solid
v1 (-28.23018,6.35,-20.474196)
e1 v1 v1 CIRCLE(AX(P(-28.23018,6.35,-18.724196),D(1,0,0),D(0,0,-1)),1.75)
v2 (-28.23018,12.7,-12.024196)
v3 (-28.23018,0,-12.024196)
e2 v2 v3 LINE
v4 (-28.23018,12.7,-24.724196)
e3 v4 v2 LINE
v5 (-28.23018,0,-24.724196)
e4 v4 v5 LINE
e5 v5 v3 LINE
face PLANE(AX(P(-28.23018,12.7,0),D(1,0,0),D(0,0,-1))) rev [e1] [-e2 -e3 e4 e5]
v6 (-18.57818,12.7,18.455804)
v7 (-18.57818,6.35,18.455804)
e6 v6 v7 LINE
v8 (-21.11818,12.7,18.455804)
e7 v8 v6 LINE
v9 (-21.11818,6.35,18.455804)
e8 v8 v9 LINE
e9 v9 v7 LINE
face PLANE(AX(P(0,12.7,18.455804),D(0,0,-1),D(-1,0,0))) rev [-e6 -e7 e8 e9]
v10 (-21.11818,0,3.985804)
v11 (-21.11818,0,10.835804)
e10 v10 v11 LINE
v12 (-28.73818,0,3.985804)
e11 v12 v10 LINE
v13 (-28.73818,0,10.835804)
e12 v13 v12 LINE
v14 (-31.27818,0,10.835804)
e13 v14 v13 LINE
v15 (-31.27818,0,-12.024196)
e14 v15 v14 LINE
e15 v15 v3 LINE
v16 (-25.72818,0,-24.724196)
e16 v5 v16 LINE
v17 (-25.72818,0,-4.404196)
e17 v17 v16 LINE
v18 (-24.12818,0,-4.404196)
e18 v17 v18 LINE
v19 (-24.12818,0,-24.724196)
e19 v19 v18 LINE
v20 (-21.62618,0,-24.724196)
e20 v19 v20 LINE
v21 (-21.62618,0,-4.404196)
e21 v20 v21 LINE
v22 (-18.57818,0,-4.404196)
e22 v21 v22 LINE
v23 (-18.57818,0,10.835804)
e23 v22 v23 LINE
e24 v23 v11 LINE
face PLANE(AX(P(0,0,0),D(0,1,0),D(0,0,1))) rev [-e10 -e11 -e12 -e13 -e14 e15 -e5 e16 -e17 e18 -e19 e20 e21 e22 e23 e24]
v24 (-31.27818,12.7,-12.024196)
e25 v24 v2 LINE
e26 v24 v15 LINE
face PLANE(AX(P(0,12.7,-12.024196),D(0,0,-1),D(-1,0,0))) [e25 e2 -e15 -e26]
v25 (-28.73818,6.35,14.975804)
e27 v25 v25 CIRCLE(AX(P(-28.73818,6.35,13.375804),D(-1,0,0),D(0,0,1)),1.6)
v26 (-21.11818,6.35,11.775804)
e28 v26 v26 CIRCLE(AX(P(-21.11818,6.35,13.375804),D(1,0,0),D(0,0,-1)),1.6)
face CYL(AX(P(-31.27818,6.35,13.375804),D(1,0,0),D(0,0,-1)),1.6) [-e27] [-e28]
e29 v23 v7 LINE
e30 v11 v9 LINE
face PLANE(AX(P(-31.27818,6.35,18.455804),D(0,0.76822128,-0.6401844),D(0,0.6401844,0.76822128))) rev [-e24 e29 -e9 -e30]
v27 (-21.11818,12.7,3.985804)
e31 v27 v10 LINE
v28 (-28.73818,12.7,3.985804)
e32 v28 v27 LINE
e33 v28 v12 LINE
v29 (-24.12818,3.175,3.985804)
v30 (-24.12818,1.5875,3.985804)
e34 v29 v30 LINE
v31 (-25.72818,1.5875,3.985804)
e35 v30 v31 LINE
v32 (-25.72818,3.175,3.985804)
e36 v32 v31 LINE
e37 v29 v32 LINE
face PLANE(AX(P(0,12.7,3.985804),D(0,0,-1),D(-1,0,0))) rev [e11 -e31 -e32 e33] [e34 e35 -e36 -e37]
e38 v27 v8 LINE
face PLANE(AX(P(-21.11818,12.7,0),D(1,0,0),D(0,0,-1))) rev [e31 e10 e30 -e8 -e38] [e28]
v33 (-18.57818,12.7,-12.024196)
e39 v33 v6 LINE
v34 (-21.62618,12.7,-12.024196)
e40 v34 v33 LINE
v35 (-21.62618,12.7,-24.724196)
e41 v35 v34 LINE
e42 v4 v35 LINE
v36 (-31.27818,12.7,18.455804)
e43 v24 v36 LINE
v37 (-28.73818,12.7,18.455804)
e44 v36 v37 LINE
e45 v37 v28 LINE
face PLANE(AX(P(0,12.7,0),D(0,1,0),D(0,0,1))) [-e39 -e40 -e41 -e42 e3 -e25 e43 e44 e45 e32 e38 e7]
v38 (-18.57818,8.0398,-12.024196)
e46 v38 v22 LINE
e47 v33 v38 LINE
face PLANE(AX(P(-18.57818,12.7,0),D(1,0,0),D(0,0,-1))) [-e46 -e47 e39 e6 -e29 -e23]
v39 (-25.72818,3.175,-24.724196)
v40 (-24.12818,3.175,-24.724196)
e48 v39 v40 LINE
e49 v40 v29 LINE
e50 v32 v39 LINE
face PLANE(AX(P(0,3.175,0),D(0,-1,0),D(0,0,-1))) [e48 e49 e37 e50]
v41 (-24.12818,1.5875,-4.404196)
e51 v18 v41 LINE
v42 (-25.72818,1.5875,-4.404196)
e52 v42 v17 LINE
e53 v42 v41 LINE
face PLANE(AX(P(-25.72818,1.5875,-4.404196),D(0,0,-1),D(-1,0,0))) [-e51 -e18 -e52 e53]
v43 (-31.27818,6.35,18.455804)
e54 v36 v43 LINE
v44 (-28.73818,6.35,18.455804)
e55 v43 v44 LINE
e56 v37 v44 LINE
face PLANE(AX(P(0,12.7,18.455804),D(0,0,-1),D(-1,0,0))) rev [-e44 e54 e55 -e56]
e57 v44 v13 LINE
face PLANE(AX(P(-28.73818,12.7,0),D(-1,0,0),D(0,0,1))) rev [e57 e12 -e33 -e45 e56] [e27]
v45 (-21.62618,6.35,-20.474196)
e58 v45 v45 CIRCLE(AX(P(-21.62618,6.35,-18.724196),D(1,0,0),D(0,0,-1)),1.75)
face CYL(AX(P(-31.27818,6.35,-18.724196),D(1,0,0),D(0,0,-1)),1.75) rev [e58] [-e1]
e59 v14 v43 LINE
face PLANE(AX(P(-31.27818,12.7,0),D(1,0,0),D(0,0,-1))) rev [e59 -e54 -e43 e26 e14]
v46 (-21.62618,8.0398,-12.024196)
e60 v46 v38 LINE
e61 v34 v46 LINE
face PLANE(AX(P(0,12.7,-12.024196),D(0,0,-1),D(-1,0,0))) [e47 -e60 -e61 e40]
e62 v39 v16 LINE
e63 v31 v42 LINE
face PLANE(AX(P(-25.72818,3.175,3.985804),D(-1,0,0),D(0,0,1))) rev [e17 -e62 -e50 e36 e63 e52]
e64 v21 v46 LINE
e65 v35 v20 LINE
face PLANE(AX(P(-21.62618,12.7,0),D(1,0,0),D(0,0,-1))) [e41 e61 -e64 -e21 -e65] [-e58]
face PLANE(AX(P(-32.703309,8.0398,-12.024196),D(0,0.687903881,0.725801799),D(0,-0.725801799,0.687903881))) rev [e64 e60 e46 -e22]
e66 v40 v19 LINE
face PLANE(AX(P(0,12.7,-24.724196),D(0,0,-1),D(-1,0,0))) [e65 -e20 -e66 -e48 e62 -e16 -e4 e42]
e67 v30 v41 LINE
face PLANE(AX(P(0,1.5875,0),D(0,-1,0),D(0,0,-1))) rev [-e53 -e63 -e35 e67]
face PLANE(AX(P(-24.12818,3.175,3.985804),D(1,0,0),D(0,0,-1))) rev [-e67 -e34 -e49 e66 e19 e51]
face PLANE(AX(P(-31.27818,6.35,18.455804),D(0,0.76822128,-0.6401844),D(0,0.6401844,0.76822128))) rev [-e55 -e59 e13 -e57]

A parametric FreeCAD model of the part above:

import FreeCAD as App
import Part
import Sketcher
Q = App.Units.Quantity

doc = App.newDocument("Part")
body = doc.addObject("PartDesign::Body", "Body")

sketch1 = body.newObject("Sketcher::SketchObject", "Sketch")
sketch1.AttachmentSupport = (doc.getObject("XZ_Plane"), [""])
sketch1.MapMode = "FlatFace"
sketch1.addGeometry(Part.LineSegment(App.Vector(-31.3, -12, 0), App.Vector(-31.3, 18.5, 0)), False)
sketch1.addGeometry(Part.LineSegment(App.Vector(-31.3, 18.5, 0), App.Vector(-28.7, 18.5, 0)), False)
sketch1.addGeometry(Part.LineSegment(App.Vector(-28.7, 18.5, 0), App.Vector(-28.7, 4, 0)), False)
sketch1.addGeometry(Part.LineSegment(App.Vector(-28.7, 4, 0), App.Vector(-21.1, 4, 0)), False)
sketch1.addGeometry(Part.LineSegment(App.Vector(-21.1, 4, 0), App.Vector(-21.1, 18.5, 0)), False)
sketch1.addGeometry(Part.LineSegment(App.Vector(-21.1, 18.5, 0), App.Vector(-18.6, 18.5, 0)), False)
sketch1.addGeometry(Part.LineSegment(App.Vector(-18.6, 18.5, 0), App.Vector(-18.6, -12, 0)), False)
sketch1.addGeometry(Part.LineSegment(App.Vector(-18.6, -12, 0), App.Vector(-21.6, -12, 0)), False)
sketch1.addGeometry(Part.LineSegment(App.Vector(-21.6, -12, 0), App.Vector(-21.6, -24.7, 0)), False)
sketch1.addGeometry(Part.LineSegment(App.Vector(-21.6, -24.7, 0), App.Vector(-28.2, -24.7, 0)), False)
sketch1.addGeometry(Part.LineSegment(App.Vector(-28.2, -24.7, 0), App.Vector(-28.2, -12, 0)), False)
sketch1.addGeometry(Part.LineSegment(App.Vector(-28.2, -12, 0), App.Vector(-31.3, -12, 0)), False)
sketch1.addConstraint(Sketcher.Constraint("Coincident", 0, 2, 1, 1))
sketch1.addConstraint(Sketcher.Constraint("Coincident", 1, 2, 2, 1))
sketch1.addConstraint(Sketcher.Constraint("Coincident", 2, 2, 3, 1))
sketch1.addConstraint(Sketcher.Constraint("Coincident", 3, 2, 4, 1))
sketch1.addConstraint(Sketcher.Constraint("Coincident", 4, 2, 5, 1))
sketch1.addConstraint(Sketcher.Constraint("Coincident", 5, 2, 6, 1))
sketch1.addConstraint(Sketcher.Constraint("Coincident", 6, 2, 7, 1))
sketch1.addConstraint(Sketcher.Constraint("Coincident", 7, 2, 8, 1))
sketch1.addConstraint(Sketcher.Constraint("Coincident", 8, 2, 9, 1))
sketch1.addConstraint(Sketcher.Constraint("Coincident", 9, 2, 10, 1))
sketch1.addConstraint(Sketcher.Constraint("Coincident", 10, 2, 11, 1))
sketch1.addConstraint(Sketcher.Constraint("Coincident", 11, 2, 0, 1))
sketch1.addConstraint(Sketcher.Constraint("Vertical", 0))
sketch1.addConstraint(Sketcher.Constraint("Horizontal", 1))
sketch1.addConstraint(Sketcher.Constraint("Vertical", 2))
sketch1.addConstraint(Sketcher.Constraint("Horizontal", 3))
sketch1.addConstraint(Sketcher.Constraint("Vertical", 4))
sketch1.addConstraint(Sketcher.Constraint("Horizontal", 5))
sketch1.addConstraint(Sketcher.Constraint("Vertical", 6))
sketch1.addConstraint(Sketcher.Constraint("Horizontal", 7))
sketch1.addConstraint(Sketcher.Constraint("Vertical", 8))
sketch1.addConstraint(Sketcher.Constraint("Horizontal", 9))
sketch1.addConstraint(Sketcher.Constraint("Vertical", 10))
sketch1.addConstraint(Sketcher.Constraint("Horizontal", 11))
sketch1.addConstraint(Sketcher.Constraint("Horizontal", 1, 2, 4, 2))
sketch1.addConstraint(Sketcher.Constraint("Horizontal", 7, 2, 10, 2))
sketch1.addConstraint(Sketcher.Constraint("Equal", 1, 5))
sketch1.addConstraint(Sketcher.Constraint("Equal", 7, 11))
sketch1.addConstraint(Sketcher.Constraint("DistanceX", 1, 1, 1, 2, Q("0.1 in")))
sketch1.addConstraint(Sketcher.Constraint("DistanceX", 3, 1, 3, 2, Q("0.3 in")))
sketch1.addConstraint(Sketcher.Constraint("DistanceY", 0, 1, 0, 2, Q("1.2 in")))
sketch1.addConstraint(Sketcher.Constraint("DistanceY", 8, 2, 8, 1, Q("0.5 in")))
sketch1.addConstraint(Sketcher.Constraint("DistanceX", 7, 2, 7, 1, Q("0.12 in")))
sketch1.addConstraint(Sketcher.Constraint("DistanceY", 2, 2, 2, 1, Q("14.47 mm")))
sketch1.addConstraint(Sketcher.Constraint("DistanceX", 0, 2, -1, 1, Q("31.27818 mm")))
sketch1.addConstraint(Sketcher.Constraint("DistanceY", -1, 1, 0, 2, Q("18.455804 mm")))
pad1 = body.newObject("PartDesign::Pad", "Pad")
pad1.Profile = sketch1
pad1.Length = Q("0.5 in")
pad1.Reversed = True

sketch2 = body.newObject("Sketcher::SketchObject", "Sketch001")
sketch2.AttachmentSupport = (doc.getObject("YZ_Plane"), [""])
sketch2.MapMode = "FlatFace"
sketch2.addGeometry(Part.Circle(App.Vector(6.3, -18.7, 0), App.Vector(0, 0, 1), 1.8), False)
sketch2.addConstraint(Sketcher.Constraint("Diameter", 0, Q("3.5 mm")))
sketch2.addConstraint(Sketcher.Constraint("DistanceX", -1, 1, 0, 3, Q("0.25 in")))
sketch2.addConstraint(Sketcher.Constraint("DistanceY", 0, 3, -1, 1, Q("18.724196 mm")))
pocket1 = body.newObject("PartDesign::Pocket", "Pocket")
pocket1.Profile = sketch2
pocket1.Type = "ThroughAll"

sketch3 = body.newObject("Sketcher::SketchObject", "Sketch002")
sketch3.AttachmentSupport = (doc.getObject("YZ_Plane"), [""])
sketch3.MapMode = "FlatFace"
sketch3.AttachmentOffset = App.Placement(App.Vector(0, 0, -18.57818), App.Rotation())
sketch3.addGeometry(Part.Circle(App.Vector(6.3, 13.4, 0), App.Vector(0, 0, 1), 1.6), False)
sketch3.addConstraint(Sketcher.Constraint("Diameter", 0, Q("3.2 mm")))
sketch3.addConstraint(Sketcher.Constraint("DistanceX", -1, 1, 0, 3, Q("0.25 in")))
sketch3.addConstraint(Sketcher.Constraint("DistanceY", -1, 1, 0, 3, Q("13.375804 mm")))
pad2 = body.newObject("PartDesign::Pad", "Pad001")
pad2.Profile = sketch3
pad2.Type = "UpToLast"
pad2.Reversed = True

sketch4 = body.newObject("Sketcher::SketchObject", "Sketch003")
sketch4.AttachmentSupport = (doc.getObject("YZ_Plane"), [""])
sketch4.MapMode = "FlatFace"
sketch4.AttachmentOffset = App.Placement(App.Vector(0, 0, -18.57818), App.Rotation())
sketch4.addGeometry(Part.LineSegment(App.Vector(0, 11, 0), App.Vector(6, 18, 0)), False)
sketch4.addGeometry(Part.LineSegment(App.Vector(6, 18, 0), App.Vector(0, 18, 0)), False)
sketch4.addGeometry(Part.LineSegment(App.Vector(0, 18, 0), App.Vector(0, 11, 0)), False)
sketch4.addConstraint(Sketcher.Constraint("Coincident", 0, 2, 1, 1))
sketch4.addConstraint(Sketcher.Constraint("Coincident", 1, 2, 2, 1))
sketch4.addConstraint(Sketcher.Constraint("Coincident", 2, 2, 0, 1))
sketch4.addConstraint(Sketcher.Constraint("Horizontal", 1))
sketch4.addConstraint(Sketcher.Constraint("Vertical", 2))
sketch4.addConstraint(Sketcher.Constraint("PointOnObject", 1, 2, -2))
sketch4.addConstraint(Sketcher.Constraint("DistanceY", 2, 2, 2, 1, Q("0.3 in")))
sketch4.addConstraint(Sketcher.Constraint("DistanceX", 1, 2, 1, 1, Q("0.25 in")))
sketch4.addConstraint(Sketcher.Constraint("DistanceY", -1, 1, 0, 2, Q("18.455804 mm")))
pocket2 = body.newObject("PartDesign::Pocket", "Pocket001")
pocket2.Profile = sketch4
pocket2.Type = "ThroughAll"

sketch5 = body.newObject("Sketcher::SketchObject", "Sketch004")
sketch5.AttachmentSupport = (doc.getObject("YZ_Plane"), [""])
sketch5.MapMode = "FlatFace"
sketch5.AttachmentOffset = App.Placement(App.Vector(0, 0, -18.57818), App.Rotation())
sketch5.addGeometry(Part.LineSegment(App.Vector(8, -12, 0), App.Vector(0, -4, 0)), False)
sketch5.addGeometry(Part.LineSegment(App.Vector(0, -4, 0), App.Vector(0, -12, 0)), False)
sketch5.addGeometry(Part.LineSegment(App.Vector(0, -12, 0), App.Vector(8, -12, 0)), False)
sketch5.addConstraint(Sketcher.Constraint("Coincident", 0, 2, 1, 1))
sketch5.addConstraint(Sketcher.Constraint("Coincident", 1, 2, 2, 1))
sketch5.addConstraint(Sketcher.Constraint("Coincident", 2, 2, 0, 1))
sketch5.addConstraint(Sketcher.Constraint("Vertical", 1))
sketch5.addConstraint(Sketcher.Constraint("Horizontal", 2))
sketch5.addConstraint(Sketcher.Constraint("PointOnObject", 0, 2, -2))
sketch5.addConstraint(Sketcher.Constraint("DistanceY", 1, 2, 1, 1, Q("0.3 in")))
sketch5.addConstraint(Sketcher.Constraint("DistanceX", 2, 1, 2, 2, Q("8.0398 mm")))
sketch5.addConstraint(Sketcher.Constraint("DistanceY", 0, 2, -1, 1, Q("4.404196 mm")))
pocket3 = body.newObject("PartDesign::Pocket", "Pocket002")
pocket3.Profile = sketch5
pocket3.Length = Q("0.12 in")

sketch6 = body.newObject("Sketcher::SketchObject", "Sketch005")
sketch6.AttachmentSupport = (doc.getObject("XZ_Plane"), [""])
sketch6.MapMode = "FlatFace"
sketch6.addGeometry(Part.LineSegment(App.Vector(-25.7, 4, 0), App.Vector(-25.7, -24.7, 0)), False)
sketch6.addGeometry(Part.LineSegment(App.Vector(-25.7, -24.7, 0), App.Vector(-24.1, -24.7, 0)), False)
sketch6.addGeometry(Part.LineSegment(App.Vector(-24.1, -24.7, 0), App.Vector(-24.1, 4, 0)), False)
sketch6.addGeometry(Part.LineSegment(App.Vector(-24.1, 4, 0), App.Vector(-25.7, 4, 0)), False)
sketch6.addConstraint(Sketcher.Constraint("Coincident", 0, 2, 1, 1))
sketch6.addConstraint(Sketcher.Constraint("Coincident", 1, 2, 2, 1))
sketch6.addConstraint(Sketcher.Constraint("Coincident", 2, 2, 3, 1))
sketch6.addConstraint(Sketcher.Constraint("Coincident", 3, 2, 0, 1))
sketch6.addConstraint(Sketcher.Constraint("Vertical", 0))
sketch6.addConstraint(Sketcher.Constraint("Horizontal", 1))
sketch6.addConstraint(Sketcher.Constraint("Vertical", 2))
sketch6.addConstraint(Sketcher.Constraint("Horizontal", 3))
sketch6.addConstraint(Sketcher.Constraint("DistanceX", 1, 1, 1, 2, Q("1.6 mm")))
sketch6.addConstraint(Sketcher.Constraint("DistanceY", 0, 2, 0, 1, Q("28.71 mm")))
sketch6.addConstraint(Sketcher.Constraint("DistanceX", 0, 2, -1, 1, Q("25.72818 mm")))
sketch6.addConstraint(Sketcher.Constraint("DistanceY", 0, 2, -1, 1, Q("24.724196 mm")))
pocket4 = body.newObject("PartDesign::Pocket", "Pocket003")
pocket4.Profile = sketch6
pocket4.Length = Q("0.125 in")

sketch7 = body.newObject("Sketcher::SketchObject", "Sketch006")
sketch7.AttachmentSupport = (doc.getObject("XZ_Plane"), [""])
sketch7.MapMode = "FlatFace"
sketch7.addGeometry(Part.LineSegment(App.Vector(-25.7, 4, 0), App.Vector(-25.7, -4.4, 0)), False)
sketch7.addGeometry(Part.LineSegment(App.Vector(-25.7, -4.4, 0), App.Vector(-24.1, -4.4, 0)), False)
sketch7.addGeometry(Part.LineSegment(App.Vector(-24.1, -4.4, 0), App.Vector(-24.1, 4, 0)), False)
sketch7.addGeometry(Part.LineSegment(App.Vector(-24.1, 4, 0), App.Vector(-25.7, 4, 0)), False)
sketch7.addConstraint(Sketcher.Constraint("Coincident", 0, 2, 1, 1))
sketch7.addConstraint(Sketcher.Constraint("Coincident", 1, 2, 2, 1))
sketch7.addConstraint(Sketcher.Constraint("Coincident", 2, 2, 3, 1))
sketch7.addConstraint(Sketcher.Constraint("Coincident", 3, 2, 0, 1))
sketch7.addConstraint(Sketcher.Constraint("Vertical", 0))
sketch7.addConstraint(Sketcher.Constraint("Horizontal", 1))
sketch7.addConstraint(Sketcher.Constraint("Vertical", 2))
sketch7.addConstraint(Sketcher.Constraint("Horizontal", 3))
sketch7.addConstraint(Sketcher.Constraint("DistanceY", 0, 2, 0, 1, Q("8.39 mm")))
sketch7.addConstraint(Sketcher.Constraint("DistanceX", 1, 1, 1, 2, Q("1.677757 mm")))
sketch7.addConstraint(Sketcher.Constraint("DistanceX", 0, 2, -1, 1, Q("25.72818 mm")))
sketch7.addConstraint(Sketcher.Constraint("DistanceY", 0, 2, -1, 1, Q("4.404196 mm")))
pad3 = body.newObject("PartDesign::Pad", "Pad002")
pad3.Profile = sketch7
pad3.Length = Q("0.0625 in")
pad3.Reversed = True

doc.recompute()
